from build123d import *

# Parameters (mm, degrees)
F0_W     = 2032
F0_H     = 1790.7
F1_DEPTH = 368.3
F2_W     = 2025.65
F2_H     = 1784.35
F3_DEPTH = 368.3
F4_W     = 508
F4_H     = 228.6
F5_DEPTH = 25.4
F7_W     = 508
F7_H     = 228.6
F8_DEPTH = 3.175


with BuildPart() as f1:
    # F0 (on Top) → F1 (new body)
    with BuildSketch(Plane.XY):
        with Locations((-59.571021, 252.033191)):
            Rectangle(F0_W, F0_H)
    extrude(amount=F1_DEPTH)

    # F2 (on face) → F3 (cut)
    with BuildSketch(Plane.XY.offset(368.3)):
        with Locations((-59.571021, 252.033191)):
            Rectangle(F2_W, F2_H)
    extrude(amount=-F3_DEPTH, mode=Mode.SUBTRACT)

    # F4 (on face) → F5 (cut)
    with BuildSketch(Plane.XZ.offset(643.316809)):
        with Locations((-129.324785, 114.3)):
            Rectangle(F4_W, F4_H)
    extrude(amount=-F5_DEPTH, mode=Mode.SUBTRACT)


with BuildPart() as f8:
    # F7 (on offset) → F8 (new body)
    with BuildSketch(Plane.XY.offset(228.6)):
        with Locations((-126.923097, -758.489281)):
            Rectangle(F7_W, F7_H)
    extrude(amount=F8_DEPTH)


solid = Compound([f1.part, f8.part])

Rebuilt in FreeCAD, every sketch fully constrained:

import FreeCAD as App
import Part
import Sketcher
from FreeCAD import Vector
Q = App.Units.Quantity

doc = App.newDocument("Part")
params = doc.addObject("Spreadsheet::Sheet", "Params")
for row, (alias, value) in enumerate([
    ("sketch1_width", "80 in"),
    ("sketch1_height", "70.5 in"),
    ("pad1_length", "14.5 in"),
    ("sketch2_width", "79.75 in"),
    ("sketch2_height", "70.25 in"),
    ("pocket1_length", "14.5 in"),
    ("sketch3_width", "20 in"),
    ("sketch3_height", "9 in"),
    ("pocket2_length", "1 in"),
    ("sketch4_width", "20 in"),
    ("sketch4_height", "9 in"),
    ("pad2_length", "0.125 in"),
], start=1):
    params.set(f"A{row}", alias)
    params.set(f"B{row}", "=" + value)
    params.setAlias(f"B{row}", alias)

body = doc.addObject("PartDesign::Body", "Body")

# Sketch on XY plane
sketch1 = doc.addObject("Sketcher::SketchObject", "Sketch")
body.addObject(sketch1)
sketch1.AttachmentSupport = (doc.XY_Plane, [""])
sketch1.MapMode = "FlatFace"
sketch1.addGeometry([
    Part.LineSegment(Vector(-1076, 1147, 0), Vector(-1076, -643, 0)),
    Part.LineSegment(Vector(-1076, -643, 0), Vector(956, -643, 0)),
    Part.LineSegment(Vector(956, -643, 0), Vector(956, 1147, 0)),
    Part.LineSegment(Vector(956, 1147, 0), Vector(-1076, 1147, 0)),
], False)
sketch1.addConstraint([
    Sketcher.Constraint("Coincident", 0, 2, 1, 1),
    Sketcher.Constraint("Coincident", 1, 2, 2, 1),
    Sketcher.Constraint("Coincident", 2, 2, 3, 1),
    Sketcher.Constraint("Coincident", 3, 2, 0, 1),
    Sketcher.Constraint("Vertical", 0),
    Sketcher.Constraint("Horizontal", 1),
    Sketcher.Constraint("Vertical", 2),
    Sketcher.Constraint("Horizontal", 3),
    Sketcher.Constraint("DistanceX", 1, 1, 1, 2, Q("80 in")),
    Sketcher.Constraint("DistanceY", 0, 2, 0, 1, Q("70.5 in")),
    Sketcher.Constraint("DistanceX", 0, 2, -1, 1, 1075.571021),
    Sketcher.Constraint("DistanceY", 0, 2, -1, 1, 643.316809),
])
sketch1.setExpression("Constraints[8]", "Params.sketch1_width")
sketch1.setExpression("Constraints[9]", "Params.sketch1_height")
pad1 = doc.addObject("PartDesign::Pad", "Pad")
body.addObject(pad1)
pad1.Profile = sketch1
pad1.setExpression("Length", "Params.pad1_length")

# Sketch on XY plane
sketch2 = doc.addObject("Sketcher::SketchObject", "Sketch001")
body.addObject(sketch2)
sketch2.AttachmentSupport = (doc.XY_Plane, [""])
sketch2.MapMode = "FlatFace"
sketch2.AttachmentOffset = App.Placement(Vector(0, 0, 14.5 * 25.4), App.Rotation())
sketch2.addGeometry([
    Part.LineSegment(Vector(-1072, 1144, 0), Vector(-1072, -640, 0)),
    Part.LineSegment(Vector(-1072, -640, 0), Vector(953, -640, 0)),
    Part.LineSegment(Vector(953, -640, 0), Vector(953, 1144, 0)),
    Part.LineSegment(Vector(953, 1144, 0), Vector(-1072, 1144, 0)),
], False)
sketch2.addConstraint([
    Sketcher.Constraint("Coincident", 0, 2, 1, 1),
    Sketcher.Constraint("Coincident", 1, 2, 2, 1),
    Sketcher.Constraint("Coincident", 2, 2, 3, 1),
    Sketcher.Constraint("Coincident", 3, 2, 0, 1),
    Sketcher.Constraint("Vertical", 0),
    Sketcher.Constraint("Horizontal", 1),
    Sketcher.Constraint("Vertical", 2),
    Sketcher.Constraint("Horizontal", 3),
    Sketcher.Constraint("DistanceX", 1, 1, 1, 2, Q("79.75 in")),
    Sketcher.Constraint("DistanceY", 0, 2, 0, 1, Q("70.25 in")),
    Sketcher.Constraint("DistanceX", 0, 2, -1, 1, 1072.396021),
    Sketcher.Constraint("DistanceY", 0, 2, -1, 1, 640.141809),
])
sketch2.setExpression("Constraints[8]", "Params.sketch2_width")
sketch2.setExpression("Constraints[9]", "Params.sketch2_height")
pocket1 = doc.addObject("PartDesign::Pocket", "Pocket")
body.addObject(pocket1)
pocket1.Profile = sketch2
pocket1.setExpression("Length", "Params.pocket1_length")

# Sketch on XZ plane
sketch3 = doc.addObject("Sketcher::SketchObject", "Sketch002")
body.addObject(sketch3)
sketch3.AttachmentSupport = (doc.XZ_Plane, [""])
sketch3.MapMode = "FlatFace"
sketch3.AttachmentOffset = App.Placement(Vector(0, 0, 643.316809), App.Rotation())
sketch3.addGeometry([
    Part.LineSegment(Vector(-383, 229, 0), Vector(-383, 0, 0)),
    Part.LineSegment(Vector(-383, 0, 0), Vector(125, 0, 0)),
    Part.LineSegment(Vector(125, 0, 0), Vector(125, 229, 0)),
    Part.LineSegment(Vector(125, 229, 0), Vector(-383, 229, 0)),
], False)
sketch3.addConstraint([
    Sketcher.Constraint("Coincident", 0, 2, 1, 1),
    Sketcher.Constraint("Coincident", 1, 2, 2, 1),
    Sketcher.Constraint("Coincident", 2, 2, 3, 1),
    Sketcher.Constraint("Coincident", 3, 2, 0, 1),
    Sketcher.Constraint("Vertical", 0),
    Sketcher.Constraint("Horizontal", 1),
    Sketcher.Constraint("Vertical", 2),
    Sketcher.Constraint("Horizontal", 3),
    Sketcher.Constraint("PointOnObject", 0, 2, -1),
    Sketcher.Constraint("DistanceX", 1, 1, 1, 2, Q("20 in")),
    Sketcher.Constraint("DistanceY", 0, 2, 0, 1, Q("9 in")),
    Sketcher.Constraint("DistanceX", 0, 2, -1, 1, 383.324785),
])
sketch3.setExpression("Constraints[9]", "Params.sketch3_width")
sketch3.setExpression("Constraints[10]", "Params.sketch3_height")
pocket2 = doc.addObject("PartDesign::Pocket", "Pocket001")
body.addObject(pocket2)
pocket2.Profile = sketch3
pocket2.setExpression("Length", "Params.pocket2_length")
body2 = doc.addObject("PartDesign::Body", "Body001")

# Sketch on XY plane
sketch4 = doc.addObject("Sketcher::SketchObject", "Sketch003")
body2.addObject(sketch4)
sketch4.AttachmentSupport = (doc.getObject("XY_Plane001"), [""])
sketch4.MapMode = "FlatFace"
sketch4.AttachmentOffset = App.Placement(Vector(0, 0, 9 * 25.4), App.Rotation())
sketch4.addGeometry([
    Part.LineSegment(Vector(-381, -644, 0), Vector(-381, -873, 0)),
    Part.LineSegment(Vector(-381, -873, 0), Vector(127, -873, 0)),
    Part.LineSegment(Vector(127, -873, 0), Vector(127, -644, 0)),
    Part.LineSegment(Vector(127, -644, 0), Vector(-381, -644, 0)),
], False)
sketch4.addConstraint([
    Sketcher.Constraint("Coincident", 0, 2, 1, 1),
    Sketcher.Constraint("Coincident", 1, 2, 2, 1),
    Sketcher.Constraint("Coincident", 2, 2, 3, 1),
    Sketcher.Constraint("Coincident", 3, 2, 0, 1),
    Sketcher.Constraint("Vertical", 0),
    Sketcher.Constraint("Horizontal", 1),
    Sketcher.Constraint("Vertical", 2),
    Sketcher.Constraint("Horizontal", 3),
    Sketcher.Constraint("DistanceX", 1, 1, 1, 2, Q("20 in")),
    Sketcher.Constraint("DistanceY", 0, 2, 0, 1, Q("9 in")),
    Sketcher.Constraint("DistanceY", 0, 2, -1, 1, 872.789281),
    Sketcher.Constraint("DistanceX", 0, 2, -1, 1, 380.923097),
])
sketch4.setExpression("Constraints[8]", "Params.sketch4_width")
sketch4.setExpression("Constraints[9]", "Params.sketch4_height")
pad2 = doc.addObject("PartDesign::Pad", "Pad001")
body2.addObject(pad2)
pad2.Profile = sketch4
pad2.setExpression("Length", "Params.pad2_length")

doc.recompute()
